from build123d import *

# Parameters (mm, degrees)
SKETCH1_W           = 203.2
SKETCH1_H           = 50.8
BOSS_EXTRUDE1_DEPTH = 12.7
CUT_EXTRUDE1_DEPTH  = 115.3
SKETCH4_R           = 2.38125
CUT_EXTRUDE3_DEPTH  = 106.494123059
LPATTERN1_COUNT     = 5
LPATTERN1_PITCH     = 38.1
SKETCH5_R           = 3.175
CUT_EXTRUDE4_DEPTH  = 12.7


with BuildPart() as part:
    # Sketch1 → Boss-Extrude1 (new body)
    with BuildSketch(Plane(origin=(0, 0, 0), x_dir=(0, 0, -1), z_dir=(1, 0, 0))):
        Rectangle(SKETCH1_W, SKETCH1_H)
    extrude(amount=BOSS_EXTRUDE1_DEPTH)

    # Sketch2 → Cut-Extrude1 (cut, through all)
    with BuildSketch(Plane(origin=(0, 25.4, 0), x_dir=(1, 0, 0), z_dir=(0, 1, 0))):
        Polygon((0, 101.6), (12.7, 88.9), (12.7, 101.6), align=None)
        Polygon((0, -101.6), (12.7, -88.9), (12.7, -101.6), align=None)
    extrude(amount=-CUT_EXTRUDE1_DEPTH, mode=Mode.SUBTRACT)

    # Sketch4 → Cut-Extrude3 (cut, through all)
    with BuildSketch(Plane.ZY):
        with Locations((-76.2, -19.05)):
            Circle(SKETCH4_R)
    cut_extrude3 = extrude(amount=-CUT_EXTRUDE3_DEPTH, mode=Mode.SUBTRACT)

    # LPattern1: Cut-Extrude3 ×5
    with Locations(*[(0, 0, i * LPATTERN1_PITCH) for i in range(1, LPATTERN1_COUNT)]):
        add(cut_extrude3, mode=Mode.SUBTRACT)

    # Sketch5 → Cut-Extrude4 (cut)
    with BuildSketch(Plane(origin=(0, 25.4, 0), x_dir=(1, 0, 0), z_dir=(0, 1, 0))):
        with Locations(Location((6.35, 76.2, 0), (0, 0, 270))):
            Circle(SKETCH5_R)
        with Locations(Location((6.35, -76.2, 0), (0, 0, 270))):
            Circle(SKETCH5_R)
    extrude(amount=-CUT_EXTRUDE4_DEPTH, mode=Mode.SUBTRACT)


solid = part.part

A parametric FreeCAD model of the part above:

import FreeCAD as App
import Part
import Sketcher
from FreeCAD import Vector
Q = App.Units.Quantity


def add_polygon(sketch, points):
    """Adds a closed chain of lines whose ends are joined by coincident constraints."""
    first, n = sketch.GeometryCount, len(points)
    for a, b in zip(points, points[1:] + points[:1]):
        sketch.addGeometry(Part.LineSegment(App.Vector(*a, 0), App.Vector(*b, 0)), False)
    for i in range(n):
        sketch.addConstraint(Sketcher.Constraint("Coincident", first + i, 2, first + (i + 1) % n, 1))

doc = App.newDocument("Part")
body = doc.addObject("PartDesign::Body", "Body")

sketch1 = body.newObject("Sketcher::SketchObject", "Sketch")
sketch1.AttachmentSupport = (doc.getObject("YZ_Plane"), [""])
sketch1.MapMode = "FlatFace"
add_polygon(sketch1, [(25, 102), (-25, 102), (-25, -102), (25, -102)])
sketch1.addConstraint(Sketcher.Constraint("Horizontal", 0))
sketch1.addConstraint(Sketcher.Constraint("Vertical", 1))
sketch1.addConstraint(Sketcher.Constraint("Horizontal", 2))
sketch1.addConstraint(Sketcher.Constraint("Vertical", 3))
sketch1.addConstraint(Sketcher.Constraint("Symmetric", 0, 2, 2, 2, -1, 1))
sketch1.addConstraint(Sketcher.Constraint("DistanceX", 0, 2, 0, 1, Q("2 in")))
sketch1.addConstraint(Sketcher.Constraint("DistanceY", 1, 2, 1, 1, Q("8 in")))
pad1 = body.newObject("PartDesign::Pad", "Pad")
pad1.Profile = sketch1
pad1.Length = Q("0.5 in")

sketch2 = body.newObject("Sketcher::SketchObject", "Sketch001")
sketch2.AttachmentSupport = (doc.getObject("XZ_Plane"), [""])
sketch2.MapMode = "FlatFace"
sketch2.AttachmentOffset = App.Placement(Vector(0, 0, -1 * 25.4), App.Rotation())
add_polygon(sketch2, [(0, -102), (13, -89), (13, -102)])
add_polygon(sketch2, [(13, 89), (0, 102), (13, 102)])
sketch2.addConstraint(Sketcher.Constraint("Vertical", 1))
sketch2.addConstraint(Sketcher.Constraint("Horizontal", 2))
sketch2.addConstraint(Sketcher.Constraint("Horizontal", 4))
sketch2.addConstraint(Sketcher.Constraint("Vertical", 5))
sketch2.addConstraint(Sketcher.Constraint("Symmetric", 2, 2, 3, 2, -1, 1))
sketch2.addConstraint(Sketcher.Constraint("Symmetric", 0, 2, 5, 2, -1))
sketch2.addConstraint(Sketcher.Constraint("PointOnObject", 2, 2, -2))
sketch2.addConstraint(Sketcher.Constraint("Perpendicular", 0, 3))
sketch2.addConstraint(Sketcher.Constraint("DistanceX", 2, 2, 2, 1, Q("0.5 in")))
sketch2.addConstraint(Sketcher.Constraint("DistanceY", 1, 2, -1, 1, Q("4 in")))
pocket1 = body.newObject("PartDesign::Pocket", "Pocket")
pocket1.Profile = sketch2
pocket1.Type = "ThroughAll"
pocket1.Reversed = True

sketch3 = body.newObject("Sketcher::SketchObject", "Sketch002")
sketch3.AttachmentSupport = (doc.getObject("YZ_Plane"), [""])
sketch3.MapMode = "FlatFace"
sketch3.addGeometry(Part.Circle(Vector(-19.1, -76.2, 0), Vector(0, 0, 1), 2.4), False)
sketch3.addConstraint(Sketcher.Constraint("Diameter", 0, Q("0.1875 in")))
sketch3.addConstraint(Sketcher.Constraint("DistanceY", 0, 3, -1, 1, Q("3 in")))
sketch3.addConstraint(Sketcher.Constraint("DistanceX", 0, 3, -1, 1, Q("0.75 in")))
pocket2 = body.newObject("PartDesign::Pocket", "Pocket001")
pocket2.Profile = sketch3
pocket2.Type = "ThroughAll"
pocket2.Reversed = True
doc.recompute()

linearpattern = body.newObject("PartDesign::LinearPattern", "LinearPattern")
linearpattern.Originals = [pocket2]
linearpattern.Direction = (doc.getObject("Z_Axis"), [""])
linearpattern.Mode = "offset"
linearpattern.Offset = Q("1.5 in")
linearpattern.Occurrences = 5
body.Tip = linearpattern

sketch4 = body.newObject("Sketcher::SketchObject", "Sketch003")
sketch4.AttachmentSupport = (doc.getObject("XZ_Plane"), [""])
sketch4.MapMode = "FlatFace"
sketch4.AttachmentOffset = App.Placement(Vector(0, 0, -1 * 25.4), App.Rotation())
sketch4.addGeometry(Part.Circle(Vector(6.3, -76.2, 0), Vector(0, 0, 1), 3.2), False)
sketch4.addGeometry(Part.Circle(Vector(6.3, 76.2, 0), Vector(0, 0, 1), 3.2), False)
sketch4.addConstraint(Sketcher.Constraint("Equal", 0, 1))
sketch4.addConstraint(Sketcher.Constraint("Symmetric", 0, 3, 1, 3, -1))
sketch4.addConstraint(Sketcher.Constraint("Diameter", 0, Q("0.25 in")))
sketch4.addConstraint(Sketcher.Constraint("DistanceY", 0, 3, -1, 1, Q("3 in")))
sketch4.addConstraint(Sketcher.Constraint("DistanceX", -1, 1, 0, 3, Q("0.25 in")))
pocket3 = body.newObject("PartDesign::Pocket", "Pocket002")
pocket3.Profile = sketch4
pocket3.Length = Q("0.5 in")
pocket3.Reversed = True

doc.recompute()
